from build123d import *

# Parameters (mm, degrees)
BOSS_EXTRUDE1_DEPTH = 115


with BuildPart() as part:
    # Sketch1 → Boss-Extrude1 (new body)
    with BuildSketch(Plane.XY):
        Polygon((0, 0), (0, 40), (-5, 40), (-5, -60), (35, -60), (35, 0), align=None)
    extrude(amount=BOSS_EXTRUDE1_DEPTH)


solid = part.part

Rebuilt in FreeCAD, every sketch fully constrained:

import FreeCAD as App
import Part
import Sketcher
Q = App.Units.Quantity


def add_polygon(sketch, points):
    """Adds a closed chain of lines whose ends are joined by coincident constraints."""
    first, n = sketch.GeometryCount, len(points)
    for a, b in zip(points, points[1:] + points[:1]):
        sketch.addGeometry(Part.LineSegment(App.Vector(*a, 0), App.Vector(*b, 0)), False)
    for i in range(n):
        sketch.addConstraint(Sketcher.Constraint("Coincident", first + i, 2, first + (i + 1) % n, 1))

doc = App.newDocument("Part")
params = doc.addObject("Spreadsheet::Sheet", "Params")
for row, (alias, value) in enumerate([
    ("sketch1_width", "5 mm"),
    ("sketch1_width2", "40 mm"),
    ("sketch1_height", "100 mm"),
    ("pad1_length", "115 mm"),
], start=1):
    params.set(f"A{row}", alias)
    params.set(f"B{row}", "=" + value)
    params.setAlias(f"B{row}", alias)

body = doc.addObject("PartDesign::Body", "Body")

# Sketch on XY plane
sketch1 = doc.addObject("Sketcher::SketchObject", "Sketch")
body.addObject(sketch1)
sketch1.AttachmentSupport = (doc.XY_Plane, [""])
sketch1.MapMode = "FlatFace"
add_polygon(sketch1, [(0, 0), (0, 40), (-5, 40), (-5, -60), (35, -60), (35, 0)])  # lines 0-5
sketch1.addConstraint([
    Sketcher.Constraint("Vertical", 0),
    Sketcher.Constraint("Horizontal", 1),
    Sketcher.Constraint("Vertical", 2),
    Sketcher.Constraint("Horizontal", 3),
    Sketcher.Constraint("Vertical", 4),
    Sketcher.Constraint("Horizontal", 5),
    Sketcher.Constraint("Coincident", 5, 2, -1, 1),
    Sketcher.Constraint("Equal", 3, 0),
    Sketcher.Constraint("DistanceX", 1, 2, 1, 1, Q("5 mm")),
    Sketcher.Constraint("DistanceX", 3, 1, 3, 2, Q("40 mm")),
    Sketcher.Constraint("DistanceY", 2, 2, 2, 1, Q("100 mm")),
])
sketch1.setExpression("Constraints[14]", "Params.sketch1_width")
sketch1.setExpression("Constraints[15]", "Params.sketch1_width2")
sketch1.setExpression("Constraints[16]", "Params.sketch1_height")
pad1 = doc.addObject("PartDesign::Pad", "Pad")
body.addObject(pad1)
pad1.Profile = sketch1
pad1.setExpression("Length", "Params.pad1_length")

doc.recompute()
